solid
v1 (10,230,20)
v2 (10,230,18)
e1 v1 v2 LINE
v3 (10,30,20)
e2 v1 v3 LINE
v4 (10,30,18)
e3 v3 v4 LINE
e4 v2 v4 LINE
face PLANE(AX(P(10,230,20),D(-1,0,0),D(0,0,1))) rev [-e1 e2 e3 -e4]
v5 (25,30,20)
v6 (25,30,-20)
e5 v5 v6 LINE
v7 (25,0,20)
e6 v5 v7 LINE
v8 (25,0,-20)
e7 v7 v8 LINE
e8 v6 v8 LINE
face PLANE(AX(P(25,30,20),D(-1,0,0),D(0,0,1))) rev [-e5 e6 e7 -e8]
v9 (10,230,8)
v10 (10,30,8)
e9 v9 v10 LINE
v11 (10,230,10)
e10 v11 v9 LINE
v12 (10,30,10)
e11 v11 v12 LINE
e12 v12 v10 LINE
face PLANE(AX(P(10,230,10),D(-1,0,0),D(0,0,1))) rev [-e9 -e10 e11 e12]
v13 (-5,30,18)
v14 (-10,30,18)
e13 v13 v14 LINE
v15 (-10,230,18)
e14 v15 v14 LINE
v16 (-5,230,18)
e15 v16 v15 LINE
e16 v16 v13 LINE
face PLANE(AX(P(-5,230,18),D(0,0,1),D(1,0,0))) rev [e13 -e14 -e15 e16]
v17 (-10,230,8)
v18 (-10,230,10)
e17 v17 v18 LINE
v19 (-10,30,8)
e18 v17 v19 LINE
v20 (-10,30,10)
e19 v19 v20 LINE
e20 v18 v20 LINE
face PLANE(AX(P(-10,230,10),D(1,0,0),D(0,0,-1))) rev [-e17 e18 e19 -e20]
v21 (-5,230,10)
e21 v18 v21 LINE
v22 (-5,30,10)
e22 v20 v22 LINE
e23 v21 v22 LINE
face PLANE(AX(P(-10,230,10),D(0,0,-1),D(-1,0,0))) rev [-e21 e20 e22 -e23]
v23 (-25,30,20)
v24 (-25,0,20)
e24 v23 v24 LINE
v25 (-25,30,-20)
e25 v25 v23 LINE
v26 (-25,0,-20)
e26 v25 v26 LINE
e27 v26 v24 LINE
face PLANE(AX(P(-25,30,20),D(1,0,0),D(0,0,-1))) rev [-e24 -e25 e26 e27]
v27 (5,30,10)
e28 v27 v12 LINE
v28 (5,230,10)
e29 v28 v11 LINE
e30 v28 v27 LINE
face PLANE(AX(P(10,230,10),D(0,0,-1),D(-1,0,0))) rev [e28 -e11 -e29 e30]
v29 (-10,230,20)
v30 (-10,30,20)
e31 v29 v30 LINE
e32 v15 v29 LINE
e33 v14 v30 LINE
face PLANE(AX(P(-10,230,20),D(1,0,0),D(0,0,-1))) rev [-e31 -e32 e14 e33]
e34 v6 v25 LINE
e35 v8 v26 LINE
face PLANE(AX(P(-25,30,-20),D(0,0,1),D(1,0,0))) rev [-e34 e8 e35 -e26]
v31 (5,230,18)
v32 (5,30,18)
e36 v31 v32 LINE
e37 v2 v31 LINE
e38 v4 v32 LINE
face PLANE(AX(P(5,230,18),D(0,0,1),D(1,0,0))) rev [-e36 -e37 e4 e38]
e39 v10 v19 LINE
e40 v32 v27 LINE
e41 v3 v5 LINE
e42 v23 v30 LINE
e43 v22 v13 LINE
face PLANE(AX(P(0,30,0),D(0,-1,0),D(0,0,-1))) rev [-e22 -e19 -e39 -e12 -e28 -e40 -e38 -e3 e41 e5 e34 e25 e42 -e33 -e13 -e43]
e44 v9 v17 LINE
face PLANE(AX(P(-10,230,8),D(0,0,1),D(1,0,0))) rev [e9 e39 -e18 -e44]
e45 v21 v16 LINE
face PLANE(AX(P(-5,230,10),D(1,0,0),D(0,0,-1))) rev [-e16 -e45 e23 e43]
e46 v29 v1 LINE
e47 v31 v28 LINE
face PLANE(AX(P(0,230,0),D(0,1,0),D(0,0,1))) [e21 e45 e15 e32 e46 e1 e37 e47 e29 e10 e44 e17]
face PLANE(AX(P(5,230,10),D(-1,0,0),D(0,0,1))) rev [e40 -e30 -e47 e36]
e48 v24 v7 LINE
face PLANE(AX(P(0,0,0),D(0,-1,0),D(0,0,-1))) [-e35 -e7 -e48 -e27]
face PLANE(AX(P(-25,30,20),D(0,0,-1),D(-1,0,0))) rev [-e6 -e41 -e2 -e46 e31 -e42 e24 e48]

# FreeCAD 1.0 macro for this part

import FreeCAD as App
import Part
import Sketcher
from FreeCAD import Vector

doc = App.newDocument("Part")
body = doc.addObject("PartDesign::Body", "Body")

# Sketch on XZ plane
sketch1 = doc.addObject("Sketcher::SketchObject", "Sketch")
body.addObject(sketch1)
sketch1.AttachmentSupport = (doc.XZ_Plane, [""])
sketch1.MapMode = "FlatFace"
sketch1.addGeometry([
    Part.LineSegment(Vector(-25, -20, 0), Vector(-25, 20, 0)),
    Part.LineSegment(Vector(-25, 20, 0), Vector(25, 20, 0)),
    Part.LineSegment(Vector(25, 20, 0), Vector(25, -20, 0)),
    Part.LineSegment(Vector(25, -20, 0), Vector(-25, -20, 0)),
], False)
sketch1.addConstraint([
    Sketcher.Constraint("Coincident", 0, 2, 1, 1),
    Sketcher.Constraint("Coincident", 1, 2, 2, 1),
    Sketcher.Constraint("Coincident", 2, 2, 3, 1),
    Sketcher.Constraint("Coincident", 3, 2, 0, 1),
    Sketcher.Constraint("Vertical", 0),
    Sketcher.Constraint("Horizontal", 1),
    Sketcher.Constraint("Vertical", 2),
    Sketcher.Constraint("Horizontal", 3),
    Sketcher.Constraint("Symmetric", 0, 2, 2, 2, -1, 1),
    Sketcher.Constraint("DistanceX", 1, 1, 1, 2, 50.0),
    Sketcher.Constraint("DistanceY", 0, 1, 0, 2, 40.0),
])
pad1 = doc.addObject("PartDesign::Pad", "Pad")
body.addObject(pad1)
pad1.Profile = sketch1
pad1.Length = 30
pad1.Reversed = True

# Sketch on XZ plane
sketch2 = doc.addObject("Sketcher::SketchObject", "Sketch001")
body.addObject(sketch2)
sketch2.AttachmentSupport = (doc.XZ_Plane, [""])
sketch2.MapMode = "FlatFace"
sketch2.AttachmentOffset = App.Placement(Vector(0, 0, -30), App.Rotation())
sketch2.addGeometry([
    Part.LineSegment(Vector(-10, 20, 0), Vector(10, 20, 0)),  # 0
    Part.LineSegment(Vector(10, 20, 0), Vector(10, 18, 0)),  # 1
    Part.LineSegment(Vector(10, 18, 0), Vector(5, 18, 0)),  # 2
    Part.LineSegment(Vector(5, 18, 0), Vector(5, 10, 0)),  # 3
    Part.LineSegment(Vector(5, 10, 0), Vector(10, 10, 0)),  # 4
    Part.LineSegment(Vector(10, 10, 0), Vector(10, 8, 0)),  # 5
    Part.LineSegment(Vector(10, 8, 0), Vector(-10, 8, 0)),  # 6
    Part.LineSegment(Vector(-10, 8, 0), Vector(-10, 10, 0)),  # 7
    Part.LineSegment(Vector(-10, 10, 0), Vector(-5, 10, 0)),  # 8
    Part.LineSegment(Vector(-5, 10, 0), Vector(-5, 18, 0)),  # 9
    Part.LineSegment(Vector(-5, 18, 0), Vector(-10, 18, 0)),  # 10
    Part.LineSegment(Vector(-10, 18, 0), Vector(-10, 20, 0)),  # 11
], False)
sketch2.addConstraint([
    Sketcher.Constraint("Coincident", 0, 2, 1, 1),
    Sketcher.Constraint("Coincident", 1, 2, 2, 1),
    Sketcher.Constraint("Coincident", 2, 2, 3, 1),
    Sketcher.Constraint("Coincident", 3, 2, 4, 1),
    Sketcher.Constraint("Coincident", 4, 2, 5, 1),
    Sketcher.Constraint("Coincident", 5, 2, 6, 1),
    Sketcher.Constraint("Coincident", 6, 2, 7, 1),
    Sketcher.Constraint("Coincident", 7, 2, 8, 1),
    Sketcher.Constraint("Coincident", 8, 2, 9, 1),
    Sketcher.Constraint("Coincident", 9, 2, 10, 1),
    Sketcher.Constraint("Coincident", 10, 2, 11, 1),
    Sketcher.Constraint("Coincident", 11, 2, 0, 1),
    Sketcher.Constraint("Horizontal", 0),
    Sketcher.Constraint("Vertical", 1),
    Sketcher.Constraint("Horizontal", 2),
    Sketcher.Constraint("Vertical", 3),
    Sketcher.Constraint("Horizontal", 4),
    Sketcher.Constraint("Vertical", 5),
    Sketcher.Constraint("Horizontal", 6),
    Sketcher.Constraint("Vertical", 7),
    Sketcher.Constraint("Horizontal", 8),
    Sketcher.Constraint("Vertical", 9),
    Sketcher.Constraint("Horizontal", 10),
    Sketcher.Constraint("Vertical", 11),
    Sketcher.Constraint("Symmetric", 4, 2, 7, 2, -2),
    Sketcher.Constraint("Symmetric", 2, 2, 9, 2, -2),
    Sketcher.Constraint("Vertical", 1, 2, 4, 2),
    Sketcher.Constraint("Vertical", 7, 2, 10, 2),
    Sketcher.Constraint("Equal", 1, 5),
    Sketcher.Constraint("DistanceX", 0, 1, 0, 2, 20.0),
    Sketcher.Constraint("DistanceX", 2, 2, 2, 1, 5.0),
    Sketcher.Constraint("DistanceY", 1, 2, 1, 1, 2.0),
    Sketcher.Constraint("DistanceY", 3, 2, 3, 1, 8.0),
    Sketcher.Constraint("DistanceY", -1, 1, 0, 2, 20.0),
])
pad2 = doc.addObject("PartDesign::Pad", "Pad001")
body.addObject(pad2)
pad2.Profile = sketch2
pad2.Length = 200
pad2.Reversed = True

doc.recompute()
